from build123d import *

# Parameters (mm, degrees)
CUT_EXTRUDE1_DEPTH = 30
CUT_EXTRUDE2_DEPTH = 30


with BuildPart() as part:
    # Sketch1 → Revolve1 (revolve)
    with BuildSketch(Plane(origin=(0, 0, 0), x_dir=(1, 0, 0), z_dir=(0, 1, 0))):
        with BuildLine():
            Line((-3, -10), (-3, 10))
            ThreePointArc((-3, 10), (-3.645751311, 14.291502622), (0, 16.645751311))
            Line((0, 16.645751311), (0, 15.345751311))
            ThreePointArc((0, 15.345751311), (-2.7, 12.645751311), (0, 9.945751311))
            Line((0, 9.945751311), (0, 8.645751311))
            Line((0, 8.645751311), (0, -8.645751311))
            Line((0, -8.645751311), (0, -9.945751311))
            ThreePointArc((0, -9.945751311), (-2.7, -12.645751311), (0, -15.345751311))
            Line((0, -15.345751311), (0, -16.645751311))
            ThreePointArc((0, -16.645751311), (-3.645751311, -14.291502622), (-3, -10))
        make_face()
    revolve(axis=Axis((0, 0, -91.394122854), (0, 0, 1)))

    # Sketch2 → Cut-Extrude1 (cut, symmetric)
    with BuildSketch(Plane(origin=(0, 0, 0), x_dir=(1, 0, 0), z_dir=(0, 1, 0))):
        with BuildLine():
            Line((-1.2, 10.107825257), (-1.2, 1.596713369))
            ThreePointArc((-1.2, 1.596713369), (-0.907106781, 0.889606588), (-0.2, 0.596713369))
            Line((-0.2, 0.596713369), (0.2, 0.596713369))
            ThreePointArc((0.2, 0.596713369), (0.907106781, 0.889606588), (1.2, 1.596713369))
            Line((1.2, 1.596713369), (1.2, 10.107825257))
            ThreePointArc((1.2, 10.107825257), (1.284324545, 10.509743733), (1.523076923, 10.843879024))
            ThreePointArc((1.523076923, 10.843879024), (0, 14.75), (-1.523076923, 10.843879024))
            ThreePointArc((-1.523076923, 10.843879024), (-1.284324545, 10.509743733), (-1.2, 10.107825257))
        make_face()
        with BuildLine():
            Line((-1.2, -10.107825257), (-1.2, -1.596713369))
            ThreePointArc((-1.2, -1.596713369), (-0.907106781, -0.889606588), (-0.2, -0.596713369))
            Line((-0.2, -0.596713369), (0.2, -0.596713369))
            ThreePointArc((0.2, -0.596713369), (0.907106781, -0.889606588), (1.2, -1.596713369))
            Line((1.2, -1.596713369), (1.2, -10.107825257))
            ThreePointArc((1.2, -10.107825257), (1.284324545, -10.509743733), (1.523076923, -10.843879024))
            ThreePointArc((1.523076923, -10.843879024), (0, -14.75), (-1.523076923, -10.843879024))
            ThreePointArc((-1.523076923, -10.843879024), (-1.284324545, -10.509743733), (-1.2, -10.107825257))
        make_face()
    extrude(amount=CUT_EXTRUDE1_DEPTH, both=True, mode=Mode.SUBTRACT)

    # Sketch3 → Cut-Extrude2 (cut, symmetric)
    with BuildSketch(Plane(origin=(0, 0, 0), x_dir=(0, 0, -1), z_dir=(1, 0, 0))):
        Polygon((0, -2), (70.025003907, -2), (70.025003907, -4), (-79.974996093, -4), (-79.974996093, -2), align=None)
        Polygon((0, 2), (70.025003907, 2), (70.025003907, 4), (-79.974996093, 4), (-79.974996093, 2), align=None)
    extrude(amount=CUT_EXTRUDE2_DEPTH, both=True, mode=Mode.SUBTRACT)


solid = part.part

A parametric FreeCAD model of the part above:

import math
import FreeCAD as App
import Part
import Sketcher
from FreeCAD import Vector
Q = App.Units.Quantity


def add_polygon(sketch, points):
    """Adds a closed chain of lines whose ends are joined by coincident constraints."""
    first, n = sketch.GeometryCount, len(points)
    for a, b in zip(points, points[1:] + points[:1]):
        sketch.addGeometry(Part.LineSegment(App.Vector(*a, 0), App.Vector(*b, 0)), False)
    for i in range(n):
        sketch.addConstraint(Sketcher.Constraint("Coincident", first + i, 2, first + (i + 1) % n, 1))

doc = App.newDocument("Part")
params = doc.addObject("Spreadsheet::Sheet", "Params")
for row, (alias, value) in enumerate([
    ("sketch1_radius", "4 mm"),
    ("sketch1_radius2", "2.7 mm"),
    ("sketch1_height", "20 mm"),
    ("revolution_angle", "360 deg"),
    ("sketch2_radius", "1 mm"),
    ("sketch2_radius2", "2.25 mm"),
    ("sketch2_width", "0.4 mm"),
    ("pocket1_length", "60 mm"),
    ("sketch3_width", "2 mm"),
    ("sketch3_height", "150 mm"),
    ("pocket2_length", "60 mm"),
], start=1):
    params.set(f"A{row}", alias)
    params.set(f"B{row}", "=" + value)
    params.setAlias(f"B{row}", alias)

body = doc.addObject("PartDesign::Body", "Body")

sketch1 = body.newObject("Sketcher::SketchObject", "Sketch")
sketch1.AttachmentSupport = (doc.getObject("XZ_Plane"), [""])
sketch1.MapMode = "FlatFace"
sketch1.addGeometry(Part.LineSegment(Vector(-3, -10, 0), Vector(-3, 10, 0)), False)
sketch1.addGeometry(Part.ArcOfCircle(Part.Circle(Vector(0, 12.6, 0), Vector(0, 0, 1), 4), math.radians(90), math.radians(221)), False)
sketch1.addGeometry(Part.LineSegment(Vector(0, 16.6, 0), Vector(0, 15.3, 0)), False)
sketch1.addGeometry(Part.ArcOfCircle(Part.Circle(Vector(0, 12.6, 0), Vector(0, 0, 1), 2.7), math.radians(90), math.radians(270)), False)
sketch1.addGeometry(Part.LineSegment(Vector(0, 9.9, 0), Vector(0, -9.9, 0)), False)
sketch1.addGeometry(Part.ArcOfCircle(Part.Circle(Vector(0, -12.6, 0), Vector(0, 0, 1), 2.7), math.radians(90), math.radians(270)), False)
sketch1.addGeometry(Part.LineSegment(Vector(0, -15.3, 0), Vector(0, -16.6, 0)), False)
sketch1.addGeometry(Part.ArcOfCircle(Part.Circle(Vector(0, -12.6, 0), Vector(0, 0, 1), 4), math.radians(139), math.radians(270)), False)
sketch1.addConstraint(Sketcher.Constraint("Coincident", 0, 2, 1, 2))
sketch1.addConstraint(Sketcher.Constraint("Coincident", 1, 1, 2, 1))
sketch1.addConstraint(Sketcher.Constraint("Coincident", 2, 2, 3, 1))
sketch1.addConstraint(Sketcher.Constraint("Coincident", 3, 2, 4, 1))
sketch1.addConstraint(Sketcher.Constraint("Coincident", 4, 2, 5, 1))
sketch1.addConstraint(Sketcher.Constraint("Coincident", 5, 2, 6, 1))
sketch1.addConstraint(Sketcher.Constraint("Coincident", 6, 2, 7, 2))
sketch1.addConstraint(Sketcher.Constraint("Coincident", 7, 1, 0, 1))
sketch1.addConstraint(Sketcher.Constraint("Vertical", 0))
sketch1.addConstraint(Sketcher.Constraint("Vertical", 2))
sketch1.addConstraint(Sketcher.Constraint("Vertical", 4))
sketch1.addConstraint(Sketcher.Constraint("Vertical", 6))
sketch1.addConstraint(Sketcher.Constraint("Coincident", 3, 3, 1, 3))
sketch1.addConstraint(Sketcher.Constraint("Coincident", 7, 3, 5, 3))
sketch1.addConstraint(Sketcher.Constraint("Equal", 3, 5))
sketch1.addConstraint(Sketcher.Constraint("Equal", 1, 7))
sketch1.addConstraint(Sketcher.Constraint("Symmetric", 1, 3, 5, 3, -1, 1))
sketch1.addConstraint(Sketcher.Constraint("PointOnObject", 1, 3, -2))
sketch1.addConstraint(Sketcher.Constraint("PointOnObject", 1, 1, -2))
sketch1.addConstraint(Sketcher.Constraint("PointOnObject", 3, 2, -2))
sketch1.addConstraint(Sketcher.Constraint("PointOnObject", 5, 2, -2))
sketch1.addConstraint(Sketcher.Constraint("Radius", 1, Q("4 mm")))
sketch1.addConstraint(Sketcher.Constraint("Radius", 3, Q("2.7 mm")))
sketch1.addConstraint(Sketcher.Constraint("DistanceY", 0, 1, 0, 2, Q("20 mm")))
sketch1.addConstraint(Sketcher.Constraint("DistanceX", 0, 2, -1, 1, Q("3 mm")))
sketch1.setExpression("Constraints[21]", "Params.sketch1_radius")
sketch1.setExpression("Constraints[22]", "Params.sketch1_radius2")
sketch1.setExpression("Constraints[23]", "Params.sketch1_height")
revolution = body.newObject("PartDesign::Revolution", "Revolution")
revolution.Profile = sketch1
revolution.ReferenceAxis = (sketch1, ["V_Axis"])
revolution.setExpression("Angle", "Params.revolution_angle")

sketch2 = body.newObject("Sketcher::SketchObject", "Sketch001")
sketch2.AttachmentSupport = (doc.getObject("XZ_Plane"), [""])
sketch2.MapMode = "FlatFace"
sketch2.addGeometry(Part.LineSegment(Vector(-1.2, -10.11, 0), Vector(-1.2, -1.6, 0)), False)
sketch2.addGeometry(Part.ArcOfCircle(Part.Circle(Vector(-0.2, -1.6, 0), Vector(0, 0, 1), 1), math.radians(90), math.radians(180)), False)
sketch2.addGeometry(Part.LineSegment(Vector(-0.2, -0.6, 0), Vector(0.2, -0.6, 0)), False)
sketch2.addGeometry(Part.ArcOfCircle(Part.Circle(Vector(0.2, -1.6, 0), Vector(0, 0, 1), 1), math.radians(0), math.radians(90)), False)
sketch2.addGeometry(Part.LineSegment(Vector(1.2, -1.6, 0), Vector(1.2, -10.11, 0)), False)
sketch2.addGeometry(Part.ArcOfCircle(Part.Circle(Vector(2.2, -10.11, 0), Vector(0, 0, 1), 1), math.radians(180), math.radians(227)), False)
sketch2.addGeometry(Part.ArcOfCircle(Part.Circle(Vector(0, -12.5, 0), Vector(0, 0, 1), 2.25), math.radians(133), math.radians(407)), False)
sketch2.addGeometry(Part.ArcOfCircle(Part.Circle(Vector(-2.2, -10.11, 0), Vector(0, 0, 1), 1), math.radians(-47), math.radians(0)), False)
sketch2.addGeometry(Part.LineSegment(Vector(-1.2, 1.6, 0), Vector(-1.2, 10.11, 0)), False)
sketch2.addGeometry(Part.ArcOfCircle(Part.Circle(Vector(-2.2, 10.11, 0), Vector(0, 0, 1), 1), math.radians(0), math.radians(47)), False)
sketch2.addGeometry(Part.ArcOfCircle(Part.Circle(Vector(0, 12.5, 0), Vector(0, 0, 1), 2.25), math.radians(-47), math.radians(227)), False)
sketch2.addGeometry(Part.ArcOfCircle(Part.Circle(Vector(2.2, 10.11, 0), Vector(0, 0, 1), 1), math.radians(133), math.radians(180)), False)
sketch2.addGeometry(Part.LineSegment(Vector(1.2, 10.11, 0), Vector(1.2, 1.6, 0)), False)
sketch2.addGeometry(Part.ArcOfCircle(Part.Circle(Vector(0.2, 1.6, 0), Vector(0, 0, 1), 1), math.radians(-90), math.radians(0)), False)
sketch2.addGeometry(Part.LineSegment(Vector(0.2, 0.6, 0), Vector(-0.2, 0.6, 0)), False)
sketch2.addGeometry(Part.ArcOfCircle(Part.Circle(Vector(-0.2, 1.6, 0), Vector(0, 0, 1), 1), math.radians(-180), math.radians(-90)), False)
sketch2.addConstraint(Sketcher.Constraint("Tangent", 0, 2, 1, 2))
sketch2.addConstraint(Sketcher.Constraint("Tangent", 1, 1, 2, 1))
sketch2.addConstraint(Sketcher.Constraint("Tangent", 2, 2, 3, 2))
sketch2.addConstraint(Sketcher.Constraint("Tangent", 3, 1, 4, 1))
sketch2.addConstraint(Sketcher.Constraint("Tangent", 4, 2, 5, 1))
sketch2.addConstraint(Sketcher.Constraint("Tangent", 5, 2, 6, 2))
sketch2.addConstraint(Sketcher.Constraint("Tangent", 6, 1, 7, 1))
sketch2.addConstraint(Sketcher.Constraint("Tangent", 7, 2, 0, 1))
sketch2.addConstraint(Sketcher.Constraint("Tangent", 8, 2, 9, 1))
sketch2.addConstraint(Sketcher.Constraint("Tangent", 9, 2, 10, 2))
sketch2.addConstraint(Sketcher.Constraint("Tangent", 10, 1, 11, 1))
sketch2.addConstraint(Sketcher.Constraint("Tangent", 11, 2, 12, 1))
sketch2.addConstraint(Sketcher.Constraint("Tangent", 12, 2, 13, 2))
sketch2.addConstraint(Sketcher.Constraint("Tangent", 13, 1, 14, 1))
sketch2.addConstraint(Sketcher.Constraint("Tangent", 14, 2, 15, 2))
sketch2.addConstraint(Sketcher.Constraint("Tangent", 15, 1, 8, 1))
sketch2.addConstraint(Sketcher.Constraint("Vertical", 0))
sketch2.addConstraint(Sketcher.Constraint("Horizontal", 2))
sketch2.addConstraint(Sketcher.Constraint("Vertical", 4))
sketch2.addConstraint(Sketcher.Constraint("Vertical", 8))
sketch2.addConstraint(Sketcher.Constraint("Vertical", 12))
sketch2.addConstraint(Sketcher.Constraint("Horizontal", 14))
sketch2.addConstraint(Sketcher.Constraint("Equal", 1, 3))
sketch2.addConstraint(Sketcher.Constraint("Equal", 3, 5))
sketch2.addConstraint(Sketcher.Constraint("Equal", 5, 7))
sketch2.addConstraint(Sketcher.Constraint("Equal", 7, 9))
sketch2.addConstraint(Sketcher.Constraint("Equal", 6, 10))
sketch2.addConstraint(Sketcher.Constraint("Equal", 9, 11))
sketch2.addConstraint(Sketcher.Constraint("Equal", 11, 13))
sketch2.addConstraint(Sketcher.Constraint("Equal", 13, 15))
sketch2.addConstraint(Sketcher.Constraint("Symmetric", 5, 3, 9, 3, -1, 1))
sketch2.addConstraint(Sketcher.Constraint("Symmetric", 7, 3, 11, 3, -1, 1))
sketch2.addConstraint(Sketcher.Constraint("Symmetric", 5, 3, 7, 3, -2))
sketch2.addConstraint(Sketcher.Constraint("Equal", 4, 8))
sketch2.addConstraint(Sketcher.Constraint("Radius", 1, Q("1 mm")))
sketch2.addConstraint(Sketcher.Constraint("Radius", 6, Q("2.25 mm")))
sketch2.addConstraint(Sketcher.Constraint("DistanceX", 2, 1, 2, 2, Q("0.4 mm")))
sketch2.addConstraint(Sketcher.Constraint("DistanceY", 6, 3, -1, 1, Q("12.5 mm")))
sketch2.addConstraint(Sketcher.Constraint("DistanceY", 0, 1, 0, 2, Q("8.511112 mm")))
sketch2.setExpression("Constraints[34]", "Params.sketch2_radius")
sketch2.setExpression("Constraints[35]", "Params.sketch2_radius2")
sketch2.setExpression("Constraints[36]", "Params.sketch2_width")
pocket1 = body.newObject("PartDesign::Pocket", "Pocket")
pocket1.Profile = sketch2
pocket1.setExpression("Length", "Params.pocket1_length")
pocket1.Midplane = True

sketch3 = body.newObject("Sketcher::SketchObject", "Sketch002")
sketch3.AttachmentSupport = (doc.getObject("YZ_Plane"), [""])
sketch3.MapMode = "FlatFace"
add_polygon(sketch3, [(-2, -70), (-2, 80), (-4, 80), (-4, -70)])
add_polygon(sketch3, [(2, -70), (4, -70), (4, 80), (2, 80)])
sketch3.addConstraint(Sketcher.Constraint("Vertical", 0))
sketch3.addConstraint(Sketcher.Constraint("Horizontal", 1))
sketch3.addConstraint(Sketcher.Constraint("Vertical", 2))
sketch3.addConstraint(Sketcher.Constraint("Horizontal", 3))
sketch3.addConstraint(Sketcher.Constraint("Horizontal", 4))
sketch3.addConstraint(Sketcher.Constraint("Vertical", 5))
sketch3.addConstraint(Sketcher.Constraint("Horizontal", 6))
sketch3.addConstraint(Sketcher.Constraint("Vertical", 7))
sketch3.addConstraint(Sketcher.Constraint("Symmetric", 2, 2, 4, 2, -2))
sketch3.addConstraint(Sketcher.Constraint("Symmetric", 0, 2, 6, 2, -2))
sketch3.addConstraint(Sketcher.Constraint("DistanceX", 1, 2, 1, 1, Q("2 mm")))
sketch3.addConstraint(Sketcher.Constraint("DistanceY", 0, 1, 0, 2, Q("150 mm")))
sketch3.addConstraint(Sketcher.Constraint("DistanceX", 0, 2, -1, 1, Q("2 mm")))
sketch3.addConstraint(Sketcher.Constraint("DistanceY", -1, 1, 0, 2, Q("79.974996 mm")))
sketch3.setExpression("Constraints[18]", "Params.sketch3_width")
sketch3.setExpression("Constraints[19]", "Params.sketch3_height")
pocket2 = body.newObject("PartDesign::Pocket", "Pocket001")
pocket2.Profile = sketch3
pocket2.setExpression("Length", "Params.pocket2_length")
pocket2.Midplane = True

doc.recompute()
